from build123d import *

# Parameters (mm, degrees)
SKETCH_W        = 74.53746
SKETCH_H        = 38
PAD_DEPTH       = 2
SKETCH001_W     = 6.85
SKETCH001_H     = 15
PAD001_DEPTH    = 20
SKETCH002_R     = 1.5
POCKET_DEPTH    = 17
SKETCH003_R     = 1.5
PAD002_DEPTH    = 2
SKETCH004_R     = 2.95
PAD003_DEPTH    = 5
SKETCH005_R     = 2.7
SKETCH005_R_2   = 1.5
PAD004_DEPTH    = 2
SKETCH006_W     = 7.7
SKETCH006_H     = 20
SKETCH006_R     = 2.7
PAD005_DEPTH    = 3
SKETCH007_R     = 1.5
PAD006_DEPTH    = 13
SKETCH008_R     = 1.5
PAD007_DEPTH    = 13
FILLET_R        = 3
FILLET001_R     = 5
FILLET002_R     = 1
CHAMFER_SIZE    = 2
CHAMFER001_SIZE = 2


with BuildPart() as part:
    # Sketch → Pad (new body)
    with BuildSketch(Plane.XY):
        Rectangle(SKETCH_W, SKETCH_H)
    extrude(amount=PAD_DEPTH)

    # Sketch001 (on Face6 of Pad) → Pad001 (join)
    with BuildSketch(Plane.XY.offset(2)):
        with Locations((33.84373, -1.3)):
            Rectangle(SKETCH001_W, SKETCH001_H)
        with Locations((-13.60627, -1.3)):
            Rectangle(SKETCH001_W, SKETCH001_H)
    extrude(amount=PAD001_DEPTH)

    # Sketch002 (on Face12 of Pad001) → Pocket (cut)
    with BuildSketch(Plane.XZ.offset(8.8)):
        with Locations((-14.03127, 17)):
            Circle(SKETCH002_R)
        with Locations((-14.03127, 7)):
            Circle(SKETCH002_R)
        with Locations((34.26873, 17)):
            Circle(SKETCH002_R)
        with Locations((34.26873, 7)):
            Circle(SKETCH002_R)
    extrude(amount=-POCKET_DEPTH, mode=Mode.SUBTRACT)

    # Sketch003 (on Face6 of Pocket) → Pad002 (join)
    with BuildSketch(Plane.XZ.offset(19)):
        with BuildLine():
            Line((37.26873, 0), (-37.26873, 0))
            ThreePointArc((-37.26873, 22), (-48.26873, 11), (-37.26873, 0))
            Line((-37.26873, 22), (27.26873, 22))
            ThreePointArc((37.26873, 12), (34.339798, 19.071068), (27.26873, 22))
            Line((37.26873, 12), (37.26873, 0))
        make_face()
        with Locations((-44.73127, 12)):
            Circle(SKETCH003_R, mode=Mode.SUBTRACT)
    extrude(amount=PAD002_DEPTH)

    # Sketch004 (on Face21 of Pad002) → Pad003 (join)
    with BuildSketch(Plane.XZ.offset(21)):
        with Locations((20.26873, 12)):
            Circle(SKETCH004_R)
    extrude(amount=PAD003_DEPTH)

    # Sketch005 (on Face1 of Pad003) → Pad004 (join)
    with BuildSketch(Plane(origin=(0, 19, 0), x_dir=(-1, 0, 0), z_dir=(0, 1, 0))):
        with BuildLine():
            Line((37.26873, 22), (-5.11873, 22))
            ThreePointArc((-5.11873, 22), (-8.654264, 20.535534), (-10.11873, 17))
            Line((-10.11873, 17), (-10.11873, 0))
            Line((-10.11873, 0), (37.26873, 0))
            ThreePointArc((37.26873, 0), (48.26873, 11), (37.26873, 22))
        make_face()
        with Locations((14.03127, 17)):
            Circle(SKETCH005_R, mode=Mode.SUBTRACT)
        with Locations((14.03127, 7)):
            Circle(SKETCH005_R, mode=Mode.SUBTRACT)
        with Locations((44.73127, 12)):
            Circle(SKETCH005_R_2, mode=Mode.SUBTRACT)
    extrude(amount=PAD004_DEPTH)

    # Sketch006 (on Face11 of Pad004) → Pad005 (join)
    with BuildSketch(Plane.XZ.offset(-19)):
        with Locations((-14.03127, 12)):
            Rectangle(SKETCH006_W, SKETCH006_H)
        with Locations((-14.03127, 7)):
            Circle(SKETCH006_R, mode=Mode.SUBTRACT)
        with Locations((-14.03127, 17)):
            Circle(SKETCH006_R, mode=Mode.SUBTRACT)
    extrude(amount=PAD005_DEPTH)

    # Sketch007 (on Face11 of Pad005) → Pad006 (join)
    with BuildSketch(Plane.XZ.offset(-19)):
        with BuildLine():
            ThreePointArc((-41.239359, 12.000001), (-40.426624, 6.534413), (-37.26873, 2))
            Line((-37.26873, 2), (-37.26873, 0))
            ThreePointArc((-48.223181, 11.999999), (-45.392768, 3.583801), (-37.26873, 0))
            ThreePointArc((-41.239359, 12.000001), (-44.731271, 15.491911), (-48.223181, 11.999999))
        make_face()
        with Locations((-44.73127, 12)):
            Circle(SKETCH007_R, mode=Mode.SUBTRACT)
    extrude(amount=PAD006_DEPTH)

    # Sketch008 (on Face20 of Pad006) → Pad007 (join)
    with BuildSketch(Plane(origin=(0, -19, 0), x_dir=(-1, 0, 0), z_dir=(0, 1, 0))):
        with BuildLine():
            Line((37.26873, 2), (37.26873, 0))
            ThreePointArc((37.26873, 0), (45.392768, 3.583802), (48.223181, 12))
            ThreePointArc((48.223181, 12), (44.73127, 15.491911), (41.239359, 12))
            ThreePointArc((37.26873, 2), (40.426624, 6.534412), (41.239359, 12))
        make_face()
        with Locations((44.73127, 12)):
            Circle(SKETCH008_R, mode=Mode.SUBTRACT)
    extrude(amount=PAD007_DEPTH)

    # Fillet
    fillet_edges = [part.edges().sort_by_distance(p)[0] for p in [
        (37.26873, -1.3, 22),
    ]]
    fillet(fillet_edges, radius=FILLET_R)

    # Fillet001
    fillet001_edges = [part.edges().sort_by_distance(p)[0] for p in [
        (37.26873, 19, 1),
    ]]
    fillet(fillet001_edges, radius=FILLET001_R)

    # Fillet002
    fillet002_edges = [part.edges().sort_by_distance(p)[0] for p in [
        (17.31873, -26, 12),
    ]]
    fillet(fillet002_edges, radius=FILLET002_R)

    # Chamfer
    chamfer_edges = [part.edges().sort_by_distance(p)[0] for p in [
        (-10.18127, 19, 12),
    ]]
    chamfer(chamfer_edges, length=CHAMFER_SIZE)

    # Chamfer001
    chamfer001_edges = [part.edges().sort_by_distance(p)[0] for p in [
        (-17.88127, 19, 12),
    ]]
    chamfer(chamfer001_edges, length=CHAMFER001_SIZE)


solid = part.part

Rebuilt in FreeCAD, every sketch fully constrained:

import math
import FreeCAD as App
import Part
import Sketcher
from FreeCAD import Vector


def edges_at(feature, points):
    """Names of the edges that pass closest to the given points."""
    edges = feature.Shape.Edges
    near = lambda p: min(range(len(edges)), key=lambda i: edges[i].distToShape(Part.Vertex(*p))[0])
    return sorted({f"Edge{near(p) + 1}" for p in points})


def add_polygon(sketch, points):
    """Adds a closed chain of lines whose ends are joined by coincident constraints."""
    first, n = sketch.GeometryCount, len(points)
    for a, b in zip(points, points[1:] + points[:1]):
        sketch.addGeometry(Part.LineSegment(App.Vector(*a, 0), App.Vector(*b, 0)), False)
    for i in range(n):
        sketch.addConstraint(Sketcher.Constraint("Coincident", first + i, 2, first + (i + 1) % n, 1))

doc = App.newDocument("Part")
body = doc.addObject("PartDesign::Body", "Body")

sketch1 = body.newObject("Sketcher::SketchObject", "Sketch")
sketch1.AttachmentSupport = (doc.getObject("XY_Plane"), [""])
sketch1.MapMode = "FlatFace"
add_polygon(sketch1, [(-37, 19), (-37, -19), (37, -19), (37, 19)])
sketch1.addConstraint([
    Sketcher.Constraint("Vertical", 0),
    Sketcher.Constraint("Horizontal", 1),
    Sketcher.Constraint("Vertical", 2),
    Sketcher.Constraint("Horizontal", 3),
    Sketcher.Constraint("Symmetric", 0, 2, 2, 2, -1, 1),
    Sketcher.Constraint("DistanceY", 0, 2, 0, 1, 38.0),
    Sketcher.Constraint("DistanceX", 1, 1, 1, 2, 74.53746),
])
pad1 = body.newObject("PartDesign::Pad", "Pad")
pad1.Profile = sketch1
pad1.Length = 2

sketch2 = body.newObject("Sketcher::SketchObject", "Sketch001")
sketch2.AttachmentSupport = (doc.getObject("XY_Plane"), [""])
sketch2.MapMode = "FlatFace"
sketch2.AttachmentOffset = App.Placement(Vector(0, 0, 2), App.Rotation())
add_polygon(sketch2, [(30, 6), (30, -9), (37, -9), (37, 6)])
add_polygon(sketch2, [(-17, 6), (-17, -9), (-10, -9), (-10, 6)])
sketch2.addConstraint([
    Sketcher.Constraint("Vertical", 0),
    Sketcher.Constraint("Horizontal", 1),
    Sketcher.Constraint("Vertical", 2),
    Sketcher.Constraint("Horizontal", 3),
    Sketcher.Constraint("Vertical", 4),
    Sketcher.Constraint("Horizontal", 5),
    Sketcher.Constraint("Vertical", 6),
    Sketcher.Constraint("Horizontal", 7),
    Sketcher.Constraint("Horizontal", 1, 2, 4, 2),
    Sketcher.Constraint("Horizontal", 3, 2, 6, 2),
    Sketcher.Constraint("Equal", 3, 5),
    Sketcher.Constraint("DistanceY", 0, 2, 0, 1, 15.0),
    Sketcher.Constraint("DistanceX", 1, 1, 1, 2, 6.85),
    Sketcher.Constraint("DistanceY", 0, 2, -1, 1, 8.8),
    Sketcher.Constraint("DistanceX", 4, 2, 1, 2, 54.3),
    Sketcher.Constraint("DistanceX", -1, 1, 0, 2, 30.41873),
])
pad2 = body.newObject("PartDesign::Pad", "Pad001")
pad2.Profile = sketch2
pad2.Length = 20

sketch3 = body.newObject("Sketcher::SketchObject", "Sketch002")
sketch3.AttachmentSupport = (doc.getObject("XZ_Plane"), [""])
sketch3.MapMode = "FlatFace"
sketch3.AttachmentOffset = App.Placement(Vector(0, 0, 8.8), App.Rotation())
sketch3.addGeometry([
    Part.Circle(Vector(-14, 17, 0), Vector(0, 0, 1), 1.5),
    Part.Circle(Vector(-14, 7, 0), Vector(0, 0, 1), 1.5),
    Part.Circle(Vector(34.3, 17, 0), Vector(0, 0, 1), 1.5),
    Part.Circle(Vector(34.3, 7, 0), Vector(0, 0, 1), 1.5),
], False)
sketch3.addConstraint([
    Sketcher.Constraint("Equal", 0, 1),
    Sketcher.Constraint("Equal", 1, 2),
    Sketcher.Constraint("Equal", 2, 3),
    Sketcher.Constraint("Horizontal", 0, 3, 2, 3),
    Sketcher.Constraint("Horizontal", 1, 3, 3, 3),
    Sketcher.Constraint("Vertical", 0, 3, 1, 3),
    Sketcher.Constraint("Vertical", 2, 3, 3, 3),
    Sketcher.Constraint("Diameter", 0, 3.0),
    Sketcher.Constraint("DistanceY", -1, 1, 0, 3, 17.0),
    Sketcher.Constraint("DistanceY", -1, 1, 1, 3, 7.0),
    Sketcher.Constraint("DistanceX", 0, 3, 2, 3, 48.3),
    Sketcher.Constraint("DistanceX", 0, 3, -1, 1, 14.03127),
])
pocket1 = body.newObject("PartDesign::Pocket", "Pocket")
pocket1.Profile = sketch3
pocket1.Length = 17

sketch4 = body.newObject("Sketcher::SketchObject", "Sketch003")
sketch4.AttachmentSupport = (doc.getObject("XZ_Plane"), [""])
sketch4.MapMode = "FlatFace"
sketch4.AttachmentOffset = App.Placement(Vector(0, 0, 19), App.Rotation())
sketch4.addGeometry([
    Part.LineSegment(Vector(-37.3, 0, 0), Vector(37.3, 0, 0)),
    Part.LineSegment(Vector(37.3, 0, 0), Vector(37.3, 12, 0)),
    Part.ArcOfCircle(Part.Circle(Vector(27.3, 12, 0), Vector(0, 0, 1), 10), math.radians(0), math.radians(90)),
    Part.LineSegment(Vector(27.3, 22, 0), Vector(-37.3, 22, 0)),
    Part.ArcOfCircle(Part.Circle(Vector(-37.3, 11, 0), Vector(0, 0, 1), 11), math.radians(90), math.radians(270)),
    Part.Circle(Vector(-44.7, 12, 0), Vector(0, 0, 1), 1.5),
], False)
sketch4.addConstraint([
    Sketcher.Constraint("Coincident", 0, 2, 1, 1),
    Sketcher.Constraint("Tangent", 1, 2, 2, 1),
    Sketcher.Constraint("Tangent", 2, 2, 3, 1),
    Sketcher.Constraint("Tangent", 3, 2, 4, 1),
    Sketcher.Constraint("Tangent", 4, 2, 0, 1),
    Sketcher.Constraint("Horizontal", 0),
    Sketcher.Constraint("Vertical", 1),
    Sketcher.Constraint("Horizontal", 3),
    Sketcher.Constraint("Symmetric", 0, 2, 4, 2, -1, 1),
    Sketcher.Constraint("Horizontal", 2, 3, 5, 3),
    Sketcher.Constraint("Diameter", 5, 3.0),
    Sketcher.Constraint("Radius", 2, 9.999999),
    Sketcher.Constraint("Radius", 4, 11.0),
    Sketcher.Constraint("DistanceX", 5, 3, 2, 3, 72.000001),
    Sketcher.Constraint("DistanceX", 0, 1, 0, 2, 74.53746),
])
pad3 = body.newObject("PartDesign::Pad", "Pad002")
pad3.Profile = sketch4
pad3.Length = 2

sketch5 = body.newObject("Sketcher::SketchObject", "Sketch004")
sketch5.AttachmentSupport = (doc.getObject("XZ_Plane"), [""])
sketch5.MapMode = "FlatFace"
sketch5.AttachmentOffset = App.Placement(Vector(0, 0, 21), App.Rotation())
sketch5.addGeometry(Part.Circle(Vector(20.3, 12, 0), Vector(0, 0, 1), 3), False)
sketch5.addConstraint([
    Sketcher.Constraint("Diameter", 0, 5.9),
    Sketcher.Constraint("DistanceY", -1, 1, 0, 3, 12.0),
    Sketcher.Constraint("DistanceX", -1, 1, 0, 3, 20.26873),
])
pad4 = body.newObject("PartDesign::Pad", "Pad003")
pad4.Profile = sketch5
pad4.Length = 5

sketch6 = body.newObject("Sketcher::SketchObject", "Sketch005")
sketch6.AttachmentSupport = (doc.getObject("XZ_Plane"), [""])
sketch6.MapMode = "FlatFace"
sketch6.AttachmentOffset = App.Placement(Vector(0, 0, -19), App.Rotation())
sketch6.addGeometry([
    Part.LineSegment(Vector(-37.3, 22, 0), Vector(5.1, 22, 0)),
    Part.ArcOfCircle(Part.Circle(Vector(5.1, 17, 0), Vector(0, 0, 1), 5), math.radians(0), math.radians(90)),
    Part.LineSegment(Vector(10.1, 17, 0), Vector(10.1, 0, 0)),
    Part.LineSegment(Vector(10.1, 0, 0), Vector(-37.3, 0, 0)),
    Part.ArcOfCircle(Part.Circle(Vector(-37.3, 11, 0), Vector(0, 0, 1), 11), math.radians(90), math.radians(270)),
    Part.Circle(Vector(-14, 7, 0), Vector(0, 0, 1), 2.7),
    Part.Circle(Vector(-14, 17, 0), Vector(0, 0, 1), 2.7),
    Part.Circle(Vector(-44.7, 12, 0), Vector(0, 0, 1), 1.5),
], False)
sketch6.addConstraint([
    Sketcher.Constraint("Tangent", 0, 2, 1, 2),
    Sketcher.Constraint("Tangent", 1, 1, 2, 1),
    Sketcher.Constraint("Coincident", 2, 2, 3, 1),
    Sketcher.Constraint("Tangent", 3, 2, 4, 2),
    Sketcher.Constraint("Tangent", 4, 1, 0, 1),
    Sketcher.Constraint("Horizontal", 0),
    Sketcher.Constraint("Vertical", 2),
    Sketcher.Constraint("Horizontal", 3),
    Sketcher.Constraint("Equal", 5, 6),
    Sketcher.Constraint("PointOnObject", 2, 2, -1),
    Sketcher.Constraint("Horizontal", 1, 3, 6, 3),
    Sketcher.Constraint("Vertical", 5, 3, 6, 3),
    Sketcher.Constraint("Diameter", 7, 3.0),
    Sketcher.Constraint("Radius", 1, 5.0),
    Sketcher.Constraint("Radius", 4, 11.0),
    Sketcher.Constraint("Diameter", 5, 5.4),
    Sketcher.Constraint("DistanceY", -1, 1, 5, 3, 7.0),
    Sketcher.Constraint("DistanceY", -1, 1, 7, 3, 12.0),
    Sketcher.Constraint("DistanceX", 7, 3, 5, 3, 30.7),
    Sketcher.Constraint("DistanceX", 5, 3, 1, 3, 19.15),
    Sketcher.Constraint("DistanceX", 0, 1, 0, 2, 42.38746),
    Sketcher.Constraint("DistanceX", -1, 1, 1, 3, 5.11873),
])
pad5 = body.newObject("PartDesign::Pad", "Pad004")
pad5.Profile = sketch6
pad5.Length = 2
pad5.Reversed = True

sketch7 = body.newObject("Sketcher::SketchObject", "Sketch006")
sketch7.AttachmentSupport = (doc.getObject("XZ_Plane"), [""])
sketch7.MapMode = "FlatFace"
sketch7.AttachmentOffset = App.Placement(Vector(0, 0, -19), App.Rotation())
add_polygon(sketch7, [(-17.9, 22), (-17.9, 2), (-10.2, 2), (-10.2, 22)])
sketch7.addGeometry(Part.Circle(Vector(-14, 7, 0), Vector(0, 0, 1), 2.7), False)
sketch7.addGeometry(Part.Circle(Vector(-14, 17, 0), Vector(0, 0, 1), 2.7), False)
sketch7.addConstraint([
    Sketcher.Constraint("Vertical", 0),
    Sketcher.Constraint("Horizontal", 1),
    Sketcher.Constraint("Vertical", 2),
    Sketcher.Constraint("Horizontal", 3),
    Sketcher.Constraint("Equal", 4, 5),
    Sketcher.Constraint("Vertical", 4, 3, 5, 3),
    Sketcher.Constraint("Diameter", 4, 5.4),
    Sketcher.Constraint("DistanceY", 0, 2, 0, 1, 20.0),
    Sketcher.Constraint("DistanceX", 1, 1, 1, 2, 7.7),
    Sketcher.Constraint("DistanceY", -1, 1, 4, 3, 7.0),
    Sketcher.Constraint("DistanceY", -1, 1, 5, 3, 17.0),
    Sketcher.Constraint("DistanceY", -1, 1, 0, 2, 2.0),
    Sketcher.Constraint("DistanceX", 0, 2, 4, 3, 3.85),
    Sketcher.Constraint("DistanceX", 4, 3, -1, 1, 14.03127),
])
pad6 = body.newObject("PartDesign::Pad", "Pad005")
pad6.Profile = sketch7
pad6.Length = 3

sketch8 = body.newObject("Sketcher::SketchObject", "Sketch007")
sketch8.AttachmentSupport = (doc.getObject("XZ_Plane"), [""])
sketch8.MapMode = "FlatFace"
sketch8.AttachmentOffset = App.Placement(Vector(0, 0, -19), App.Rotation())
sketch8.addGeometry([
    Part.ArcOfCircle(Part.Circle(Vector(-29.2, 11, 0), Vector(0, 0, 1), 12.1), math.radians(175), math.radians(228)),
    Part.ArcOfCircle(Part.Circle(Vector(-44.7, 12, 0), Vector(0, 0, 1), 3.5), math.radians(0), math.radians(180)),
    Part.ArcOfCircle(Part.Circle(Vector(-37.3, 11, 0), Vector(0, 0, 1), 11), math.radians(175), math.radians(270)),
    Part.LineSegment(Vector(-37.3, 0, 0), Vector(-37.3, 2, 0)),
    Part.Circle(Vector(-44.7, 12, 0), Vector(0, 0, 1), 1.5),
], False)
sketch8.addConstraint([
    Sketcher.Constraint("Coincident", 0, 1, 1, 1),
    Sketcher.Constraint("Coincident", 1, 2, 2, 1),
    Sketcher.Constraint("Coincident", 2, 2, 3, 1),
    Sketcher.Constraint("Coincident", 3, 2, 0, 2),
    Sketcher.Constraint("Vertical", 3),
    Sketcher.Constraint("Coincident", 4, 3, 1, 3),
    Sketcher.Constraint("PointOnObject", 2, 2, -1),
    Sketcher.Constraint("Horizontal", 0, 3, 2, 3),
    Sketcher.Constraint("Horizontal", 4, 3, 0, 1),
    Sketcher.Constraint("Horizontal", 4, 3, 1, 2),
    Sketcher.Constraint("Diameter", 4, 3.0),
    Sketcher.Constraint("Radius", 2, 11.0),
    Sketcher.Constraint("DistanceY", 3, 1, 3, 2, 2.0),
    Sketcher.Constraint("DistanceY", -1, 1, 1, 3, 12.0),
    Sketcher.Constraint("Radius", 1, 3.491911),
    Sketcher.Constraint("Radius", 0, 12.100677),
    Sketcher.Constraint("DistanceX", 1, 3, -1, 1, 44.73127),
])
pad7 = body.newObject("PartDesign::Pad", "Pad006")
pad7.Profile = sketch8
pad7.Length = 13

sketch9 = body.newObject("Sketcher::SketchObject", "Sketch008")
sketch9.AttachmentSupport = (doc.getObject("XZ_Plane"), [""])
sketch9.MapMode = "FlatFace"
sketch9.AttachmentOffset = App.Placement(Vector(0, 0, 19), App.Rotation())
sketch9.addGeometry([
    Part.LineSegment(Vector(-37.3, 2, 0), Vector(-37.3, 0, 0)),
    Part.ArcOfCircle(Part.Circle(Vector(-37.3, 11, 0), Vector(0, 0, 1), 11), math.radians(175), math.radians(270)),
    Part.ArcOfCircle(Part.Circle(Vector(-44.7, 12, 0), Vector(0, 0, 1), 3.5), math.radians(0), math.radians(180)),
    Part.ArcOfCircle(Part.Circle(Vector(-29.2, 11, 0), Vector(0, 0, 1), 12.1), math.radians(175), math.radians(228)),
    Part.Circle(Vector(-44.7, 12, 0), Vector(0, 0, 1), 1.5),
], False)
sketch9.addConstraint([
    Sketcher.Constraint("Coincident", 0, 2, 1, 2),
    Sketcher.Constraint("Coincident", 1, 1, 2, 2),
    Sketcher.Constraint("Coincident", 2, 1, 3, 1),
    Sketcher.Constraint("Coincident", 3, 2, 0, 1),
    Sketcher.Constraint("Vertical", 0),
    Sketcher.Constraint("Coincident", 4, 3, 2, 3),
    Sketcher.Constraint("PointOnObject", 0, 2, -1),
    Sketcher.Constraint("Horizontal", 4, 3, 1, 1),
    Sketcher.Constraint("Horizontal", 1, 1, 2, 1),
    Sketcher.Constraint("Vertical", 1, 3, 0, 2),
    Sketcher.Constraint("Diameter", 4, 3.0),
    Sketcher.Constraint("Radius", 1, 11.000001),
    Sketcher.Constraint("DistanceY", 0, 2, 0, 1, 2.0),
    Sketcher.Constraint("DistanceY", -1, 1, 2, 3, 12.0),
    Sketcher.Constraint("DistanceY", -1, 1, 3, 3, 10.999999),
    Sketcher.Constraint("Radius", 2, 3.491911),
    Sketcher.Constraint("DistanceX", 1, 3, -1, 1, 37.268729),
])
pad8 = body.newObject("PartDesign::Pad", "Pad007")
pad8.Profile = sketch9
pad8.Length = 13
pad8.Reversed = True
doc.recompute()

fillet = body.newObject("PartDesign::Fillet", "Fillet")
fillet.Base = (pad8, edges_at(pad8, [(37.269, -1.3, 22)]))
fillet.Radius = 3
doc.recompute()

fillet2 = body.newObject("PartDesign::Fillet", "Fillet001")
fillet2.Base = (fillet, edges_at(fillet, [(37.269, 19, 1)]))
fillet2.Radius = 5
doc.recompute()

fillet3 = body.newObject("PartDesign::Fillet", "Fillet002")
fillet3.Base = (fillet2, edges_at(fillet2, [(17.319, -26, 12)]))
fillet3.Radius = 1
doc.recompute()

chamfer = body.newObject("PartDesign::Chamfer", "Chamfer")
chamfer.Base = (fillet3, edges_at(fillet3, [(-10.181, 19, 12)]))
chamfer.Size = 2
doc.recompute()

chamfer2 = body.newObject("PartDesign::Chamfer", "Chamfer001")
chamfer2.Base = (chamfer, edges_at(chamfer, [(-17.881, 19, 12)]))
chamfer2.Size = 2

doc.recompute()
